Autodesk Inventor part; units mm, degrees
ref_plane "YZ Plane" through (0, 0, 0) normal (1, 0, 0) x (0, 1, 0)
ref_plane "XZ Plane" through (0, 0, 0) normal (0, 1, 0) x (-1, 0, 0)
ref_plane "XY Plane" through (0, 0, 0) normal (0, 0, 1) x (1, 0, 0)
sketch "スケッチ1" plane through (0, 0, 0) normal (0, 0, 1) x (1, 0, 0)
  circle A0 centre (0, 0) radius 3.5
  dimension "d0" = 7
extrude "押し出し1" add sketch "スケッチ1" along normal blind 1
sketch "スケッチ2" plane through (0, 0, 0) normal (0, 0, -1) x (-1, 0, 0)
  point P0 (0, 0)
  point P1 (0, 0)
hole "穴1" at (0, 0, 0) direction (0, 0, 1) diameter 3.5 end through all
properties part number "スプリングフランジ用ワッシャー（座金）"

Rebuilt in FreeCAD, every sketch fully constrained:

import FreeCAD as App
import Part
import Sketcher
from FreeCAD import Vector
Q = App.Units.Quantity

doc = App.newDocument("Part")
body = doc.addObject("PartDesign::Body", "Body")

# Sketch on XY plane
sketch1 = body.newObject("Sketcher::SketchObject", "Sketch")
sketch1.AttachmentSupport = (doc.getObject("XY_Plane"), [""])
sketch1.MapMode = "FlatFace"
sketch1.addGeometry(Part.Circle(Vector(0, 0, 0), Vector(0, 0, 1), 3.5), False)
sketch1.addConstraint([
    Sketcher.Constraint("Coincident", 0, 3, -1, 1),
    Sketcher.Constraint("Diameter", 0, Q("7 mm")),
])
pad1 = body.newObject("PartDesign::Pad", "Pad")
pad1.Profile = sketch1
pad1.Length = 1

# Sketch on XY plane
sketch2 = body.newObject("Sketcher::SketchObject", "Sketch001")
sketch2.AttachmentSupport = (doc.getObject("XY_Plane"), [""])
sketch2.MapMode = "FlatFace"
sketch2.addGeometry(Part.Circle(Vector(0, 0, 0), Vector(0, 0, 1), 1.75), False)
sketch2.addConstraint([
    Sketcher.Constraint("Coincident", 0, 3, -1, 1),
    Sketcher.Constraint("Diameter", 0, Q("3.5 mm")),
])
doc.recompute()
hole = body.newObject("PartDesign::Hole", "Hole")
hole.Profile = sketch2
hole.ThreadType = "None"
hole.Diameter = 3.5
hole.DepthType = "ThroughAll"
hole.Reversed = True

doc.recompute()
